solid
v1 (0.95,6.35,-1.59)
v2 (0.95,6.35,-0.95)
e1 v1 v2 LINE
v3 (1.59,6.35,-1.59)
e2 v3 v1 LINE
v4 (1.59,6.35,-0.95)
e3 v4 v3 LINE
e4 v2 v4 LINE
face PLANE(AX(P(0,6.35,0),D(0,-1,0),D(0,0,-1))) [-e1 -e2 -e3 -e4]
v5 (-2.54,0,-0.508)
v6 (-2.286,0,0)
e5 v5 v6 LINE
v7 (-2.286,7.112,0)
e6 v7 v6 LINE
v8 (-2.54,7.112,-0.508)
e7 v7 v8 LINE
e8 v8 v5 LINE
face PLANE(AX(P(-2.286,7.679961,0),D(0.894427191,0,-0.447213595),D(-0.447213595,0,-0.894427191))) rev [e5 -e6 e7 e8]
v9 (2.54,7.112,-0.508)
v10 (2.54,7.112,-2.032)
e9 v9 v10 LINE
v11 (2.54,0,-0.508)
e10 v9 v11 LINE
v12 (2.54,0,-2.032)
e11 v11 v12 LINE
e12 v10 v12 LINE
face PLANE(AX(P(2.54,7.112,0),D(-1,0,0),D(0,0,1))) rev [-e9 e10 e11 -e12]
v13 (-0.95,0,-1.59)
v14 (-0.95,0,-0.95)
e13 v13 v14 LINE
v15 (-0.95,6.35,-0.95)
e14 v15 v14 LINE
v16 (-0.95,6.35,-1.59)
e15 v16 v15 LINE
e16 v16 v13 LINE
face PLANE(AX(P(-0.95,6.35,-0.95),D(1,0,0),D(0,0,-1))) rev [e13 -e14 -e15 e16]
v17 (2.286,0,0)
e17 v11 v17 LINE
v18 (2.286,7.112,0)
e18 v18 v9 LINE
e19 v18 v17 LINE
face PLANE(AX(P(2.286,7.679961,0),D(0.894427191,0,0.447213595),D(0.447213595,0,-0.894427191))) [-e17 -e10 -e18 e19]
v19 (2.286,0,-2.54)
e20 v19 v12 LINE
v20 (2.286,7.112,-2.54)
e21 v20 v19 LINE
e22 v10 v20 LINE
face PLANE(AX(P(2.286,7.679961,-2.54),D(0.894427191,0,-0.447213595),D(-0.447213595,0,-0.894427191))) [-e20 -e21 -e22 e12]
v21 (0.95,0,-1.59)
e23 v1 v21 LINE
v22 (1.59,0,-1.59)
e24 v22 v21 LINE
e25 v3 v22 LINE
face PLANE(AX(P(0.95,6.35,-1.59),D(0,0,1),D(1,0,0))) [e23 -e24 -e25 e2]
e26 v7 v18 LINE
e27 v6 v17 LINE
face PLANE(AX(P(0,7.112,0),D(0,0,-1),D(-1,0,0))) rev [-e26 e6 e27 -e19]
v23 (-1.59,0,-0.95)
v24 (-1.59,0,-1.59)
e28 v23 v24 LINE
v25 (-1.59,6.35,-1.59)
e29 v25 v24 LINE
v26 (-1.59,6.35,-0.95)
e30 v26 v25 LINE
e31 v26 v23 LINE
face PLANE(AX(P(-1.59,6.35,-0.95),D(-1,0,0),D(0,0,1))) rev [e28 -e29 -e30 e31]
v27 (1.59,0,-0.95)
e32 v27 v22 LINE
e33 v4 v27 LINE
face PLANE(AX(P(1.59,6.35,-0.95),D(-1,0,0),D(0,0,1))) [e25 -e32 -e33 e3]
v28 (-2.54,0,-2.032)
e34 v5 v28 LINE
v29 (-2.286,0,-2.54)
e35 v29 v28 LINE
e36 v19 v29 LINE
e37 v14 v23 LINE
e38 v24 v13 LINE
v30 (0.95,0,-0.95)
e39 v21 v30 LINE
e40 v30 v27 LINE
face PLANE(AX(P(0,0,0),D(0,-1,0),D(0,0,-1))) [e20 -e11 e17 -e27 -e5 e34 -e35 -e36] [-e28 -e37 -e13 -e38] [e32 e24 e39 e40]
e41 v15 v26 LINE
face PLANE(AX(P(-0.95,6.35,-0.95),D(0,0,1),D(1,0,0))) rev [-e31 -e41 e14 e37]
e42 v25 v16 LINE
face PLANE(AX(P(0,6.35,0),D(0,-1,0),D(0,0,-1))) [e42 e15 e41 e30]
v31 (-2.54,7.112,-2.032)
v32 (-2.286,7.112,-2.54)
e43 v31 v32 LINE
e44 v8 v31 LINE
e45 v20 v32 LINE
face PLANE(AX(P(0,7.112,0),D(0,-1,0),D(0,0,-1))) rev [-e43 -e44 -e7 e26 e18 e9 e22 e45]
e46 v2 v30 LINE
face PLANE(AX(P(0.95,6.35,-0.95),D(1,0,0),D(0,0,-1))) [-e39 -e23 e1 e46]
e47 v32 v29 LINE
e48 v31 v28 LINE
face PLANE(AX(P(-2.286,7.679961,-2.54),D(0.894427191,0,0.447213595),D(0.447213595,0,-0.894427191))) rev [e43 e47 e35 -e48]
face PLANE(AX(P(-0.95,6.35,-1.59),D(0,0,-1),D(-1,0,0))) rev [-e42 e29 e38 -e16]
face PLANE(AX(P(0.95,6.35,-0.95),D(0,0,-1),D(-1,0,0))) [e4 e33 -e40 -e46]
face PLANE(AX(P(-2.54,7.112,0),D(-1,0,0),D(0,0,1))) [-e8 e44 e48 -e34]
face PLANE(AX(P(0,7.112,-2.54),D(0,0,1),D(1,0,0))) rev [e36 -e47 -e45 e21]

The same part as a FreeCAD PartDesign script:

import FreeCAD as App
import Part
import Sketcher
from FreeCAD import Vector
Q = App.Units.Quantity


def add_polygon(sketch, points):
    """Adds a closed chain of lines whose ends are joined by coincident constraints."""
    first, n = sketch.GeometryCount, len(points)
    for a, b in zip(points, points[1:] + points[:1]):
        sketch.addGeometry(Part.LineSegment(App.Vector(*a, 0), App.Vector(*b, 0)), False)
    for i in range(n):
        sketch.addConstraint(Sketcher.Constraint("Coincident", first + i, 2, first + (i + 1) % n, 1))

doc = App.newDocument("Part")
params = doc.addObject("Spreadsheet::Sheet", "Params")
for row, (alias, value) in enumerate([
    ("sketch1_width", "0.1 in"),
    ("pad1_length", "0.28 in"),
    ("sketch2_width", "0.01 in"),
    ("sketch2_height", "0.02 in"),
    ("pocket1_length", "0.28 in"),
    ("pocket2_length", "0.25 in"),
], start=1):
    params.set(f"A{row}", alias)
    params.set(f"B{row}", "=" + value)
    params.setAlias(f"B{row}", alias)

body = doc.addObject("PartDesign::Body", "Body")

# Sketch on XZ plane
sketch1 = body.newObject("Sketcher::SketchObject", "Sketch")
sketch1.AttachmentSupport = (doc.getObject("XZ_Plane"), [""])
sketch1.MapMode = "FlatFace"
add_polygon(sketch1, [(0, -2.5), (0, 0), (2.5, 0), (2.5, -2.5)])  # lines 0-3
sketch1.addConstraint([
    Sketcher.Constraint("Vertical", 0),
    Sketcher.Constraint("Horizontal", 1),
    Sketcher.Constraint("Vertical", 2),
    Sketcher.Constraint("Horizontal", 3),
    Sketcher.Constraint("Coincident", 0, 2, -1, 1),
    Sketcher.Constraint("Equal", 3, 0),
    Sketcher.Constraint("DistanceX", 1, 1, 1, 2, Q("0.1 in")),
])
sketch1.setExpression("Constraints[10]", "Params.sketch1_width")
pad1 = body.newObject("PartDesign::Pad", "Pad")
pad1.Profile = sketch1
pad1.setExpression("Length", "Params.pad1_length")
pad1.Reversed = True

# Sketch on XZ plane
sketch2 = body.newObject("Sketcher::SketchObject", "Sketch001")
sketch2.AttachmentSupport = (doc.getObject("XZ_Plane"), [""])
sketch2.MapMode = "FlatFace"
add_polygon(sketch2, [(2.54, -2.54), (2.29, -2.54), (2.54, -2.03)])  # lines 0-2
add_polygon(sketch2, [(2.29, 0), (2.54, 0), (2.54, -0.51)])  # lines 3-5
sketch2.addConstraint([
    Sketcher.Constraint("Horizontal", 0),
    Sketcher.Constraint("Vertical", 2),
    Sketcher.Constraint("Horizontal", 3),
    Sketcher.Constraint("Vertical", 4),
    Sketcher.Constraint("PointOnObject", 3, 2, -1),
    Sketcher.Constraint("Vertical", 2, 2, 3, 2),
    Sketcher.Constraint("Vertical", 0, 2, 5, 2),
    Sketcher.Constraint("Equal", 2, 4),
    Sketcher.Constraint("DistanceX", 0, 2, 0, 1, Q("0.01 in")),
    Sketcher.Constraint("DistanceY", 2, 2, 2, 1, Q("0.02 in")),
    Sketcher.Constraint("DistanceY", 0, 2, -1, 1, Q("0.1 in")),
    Sketcher.Constraint("DistanceX", -1, 1, 1, 2, Q("0.1 in")),
])
sketch2.setExpression("Constraints[14]", "Params.sketch2_width")
sketch2.setExpression("Constraints[15]", "Params.sketch2_height")
pocket1 = body.newObject("PartDesign::Pocket", "Pocket")
pocket1.Profile = sketch2
pocket1.setExpression("Length", "Params.pocket1_length")

# Sketch on XZ plane
sketch3 = body.newObject("Sketcher::SketchObject", "Sketch002")
sketch3.AttachmentSupport = (doc.getObject("XZ_Plane"), [""])
sketch3.MapMode = "FlatFace"
add_polygon(sketch3, [(0.9, -1.6), (0.9, -0.9), (1.6, -0.9), (1.6, -1.6)])  # lines 0-3
sketch3.addConstraint([
    Sketcher.Constraint("Vertical", 0),
    Sketcher.Constraint("Horizontal", 1),
    Sketcher.Constraint("Vertical", 2),
    Sketcher.Constraint("Horizontal", 3),
    Sketcher.Constraint("Equal", 3, 0),
    Sketcher.Constraint("DistanceX", 1, 1, 1, 2, 0.64),
    Sketcher.Constraint("DistanceX", -1, 1, 0, 2, 0.95),
    Sketcher.Constraint("DistanceY", 0, 2, -1, 1, 0.95),
])
pocket2 = body.newObject("PartDesign::Pocket", "Pocket001")
pocket2.Profile = sketch3
pocket2.setExpression("Length", "Params.pocket2_length")
doc.recompute()

mirrored = body.newObject("PartDesign::Mirrored", "Mirrored")
mirrored.Originals = [pad1, pocket1, pocket2]
mirrored.MirrorPlane = (doc.getObject("YZ_Plane"), [""])
body.Tip = mirrored

doc.recompute()
